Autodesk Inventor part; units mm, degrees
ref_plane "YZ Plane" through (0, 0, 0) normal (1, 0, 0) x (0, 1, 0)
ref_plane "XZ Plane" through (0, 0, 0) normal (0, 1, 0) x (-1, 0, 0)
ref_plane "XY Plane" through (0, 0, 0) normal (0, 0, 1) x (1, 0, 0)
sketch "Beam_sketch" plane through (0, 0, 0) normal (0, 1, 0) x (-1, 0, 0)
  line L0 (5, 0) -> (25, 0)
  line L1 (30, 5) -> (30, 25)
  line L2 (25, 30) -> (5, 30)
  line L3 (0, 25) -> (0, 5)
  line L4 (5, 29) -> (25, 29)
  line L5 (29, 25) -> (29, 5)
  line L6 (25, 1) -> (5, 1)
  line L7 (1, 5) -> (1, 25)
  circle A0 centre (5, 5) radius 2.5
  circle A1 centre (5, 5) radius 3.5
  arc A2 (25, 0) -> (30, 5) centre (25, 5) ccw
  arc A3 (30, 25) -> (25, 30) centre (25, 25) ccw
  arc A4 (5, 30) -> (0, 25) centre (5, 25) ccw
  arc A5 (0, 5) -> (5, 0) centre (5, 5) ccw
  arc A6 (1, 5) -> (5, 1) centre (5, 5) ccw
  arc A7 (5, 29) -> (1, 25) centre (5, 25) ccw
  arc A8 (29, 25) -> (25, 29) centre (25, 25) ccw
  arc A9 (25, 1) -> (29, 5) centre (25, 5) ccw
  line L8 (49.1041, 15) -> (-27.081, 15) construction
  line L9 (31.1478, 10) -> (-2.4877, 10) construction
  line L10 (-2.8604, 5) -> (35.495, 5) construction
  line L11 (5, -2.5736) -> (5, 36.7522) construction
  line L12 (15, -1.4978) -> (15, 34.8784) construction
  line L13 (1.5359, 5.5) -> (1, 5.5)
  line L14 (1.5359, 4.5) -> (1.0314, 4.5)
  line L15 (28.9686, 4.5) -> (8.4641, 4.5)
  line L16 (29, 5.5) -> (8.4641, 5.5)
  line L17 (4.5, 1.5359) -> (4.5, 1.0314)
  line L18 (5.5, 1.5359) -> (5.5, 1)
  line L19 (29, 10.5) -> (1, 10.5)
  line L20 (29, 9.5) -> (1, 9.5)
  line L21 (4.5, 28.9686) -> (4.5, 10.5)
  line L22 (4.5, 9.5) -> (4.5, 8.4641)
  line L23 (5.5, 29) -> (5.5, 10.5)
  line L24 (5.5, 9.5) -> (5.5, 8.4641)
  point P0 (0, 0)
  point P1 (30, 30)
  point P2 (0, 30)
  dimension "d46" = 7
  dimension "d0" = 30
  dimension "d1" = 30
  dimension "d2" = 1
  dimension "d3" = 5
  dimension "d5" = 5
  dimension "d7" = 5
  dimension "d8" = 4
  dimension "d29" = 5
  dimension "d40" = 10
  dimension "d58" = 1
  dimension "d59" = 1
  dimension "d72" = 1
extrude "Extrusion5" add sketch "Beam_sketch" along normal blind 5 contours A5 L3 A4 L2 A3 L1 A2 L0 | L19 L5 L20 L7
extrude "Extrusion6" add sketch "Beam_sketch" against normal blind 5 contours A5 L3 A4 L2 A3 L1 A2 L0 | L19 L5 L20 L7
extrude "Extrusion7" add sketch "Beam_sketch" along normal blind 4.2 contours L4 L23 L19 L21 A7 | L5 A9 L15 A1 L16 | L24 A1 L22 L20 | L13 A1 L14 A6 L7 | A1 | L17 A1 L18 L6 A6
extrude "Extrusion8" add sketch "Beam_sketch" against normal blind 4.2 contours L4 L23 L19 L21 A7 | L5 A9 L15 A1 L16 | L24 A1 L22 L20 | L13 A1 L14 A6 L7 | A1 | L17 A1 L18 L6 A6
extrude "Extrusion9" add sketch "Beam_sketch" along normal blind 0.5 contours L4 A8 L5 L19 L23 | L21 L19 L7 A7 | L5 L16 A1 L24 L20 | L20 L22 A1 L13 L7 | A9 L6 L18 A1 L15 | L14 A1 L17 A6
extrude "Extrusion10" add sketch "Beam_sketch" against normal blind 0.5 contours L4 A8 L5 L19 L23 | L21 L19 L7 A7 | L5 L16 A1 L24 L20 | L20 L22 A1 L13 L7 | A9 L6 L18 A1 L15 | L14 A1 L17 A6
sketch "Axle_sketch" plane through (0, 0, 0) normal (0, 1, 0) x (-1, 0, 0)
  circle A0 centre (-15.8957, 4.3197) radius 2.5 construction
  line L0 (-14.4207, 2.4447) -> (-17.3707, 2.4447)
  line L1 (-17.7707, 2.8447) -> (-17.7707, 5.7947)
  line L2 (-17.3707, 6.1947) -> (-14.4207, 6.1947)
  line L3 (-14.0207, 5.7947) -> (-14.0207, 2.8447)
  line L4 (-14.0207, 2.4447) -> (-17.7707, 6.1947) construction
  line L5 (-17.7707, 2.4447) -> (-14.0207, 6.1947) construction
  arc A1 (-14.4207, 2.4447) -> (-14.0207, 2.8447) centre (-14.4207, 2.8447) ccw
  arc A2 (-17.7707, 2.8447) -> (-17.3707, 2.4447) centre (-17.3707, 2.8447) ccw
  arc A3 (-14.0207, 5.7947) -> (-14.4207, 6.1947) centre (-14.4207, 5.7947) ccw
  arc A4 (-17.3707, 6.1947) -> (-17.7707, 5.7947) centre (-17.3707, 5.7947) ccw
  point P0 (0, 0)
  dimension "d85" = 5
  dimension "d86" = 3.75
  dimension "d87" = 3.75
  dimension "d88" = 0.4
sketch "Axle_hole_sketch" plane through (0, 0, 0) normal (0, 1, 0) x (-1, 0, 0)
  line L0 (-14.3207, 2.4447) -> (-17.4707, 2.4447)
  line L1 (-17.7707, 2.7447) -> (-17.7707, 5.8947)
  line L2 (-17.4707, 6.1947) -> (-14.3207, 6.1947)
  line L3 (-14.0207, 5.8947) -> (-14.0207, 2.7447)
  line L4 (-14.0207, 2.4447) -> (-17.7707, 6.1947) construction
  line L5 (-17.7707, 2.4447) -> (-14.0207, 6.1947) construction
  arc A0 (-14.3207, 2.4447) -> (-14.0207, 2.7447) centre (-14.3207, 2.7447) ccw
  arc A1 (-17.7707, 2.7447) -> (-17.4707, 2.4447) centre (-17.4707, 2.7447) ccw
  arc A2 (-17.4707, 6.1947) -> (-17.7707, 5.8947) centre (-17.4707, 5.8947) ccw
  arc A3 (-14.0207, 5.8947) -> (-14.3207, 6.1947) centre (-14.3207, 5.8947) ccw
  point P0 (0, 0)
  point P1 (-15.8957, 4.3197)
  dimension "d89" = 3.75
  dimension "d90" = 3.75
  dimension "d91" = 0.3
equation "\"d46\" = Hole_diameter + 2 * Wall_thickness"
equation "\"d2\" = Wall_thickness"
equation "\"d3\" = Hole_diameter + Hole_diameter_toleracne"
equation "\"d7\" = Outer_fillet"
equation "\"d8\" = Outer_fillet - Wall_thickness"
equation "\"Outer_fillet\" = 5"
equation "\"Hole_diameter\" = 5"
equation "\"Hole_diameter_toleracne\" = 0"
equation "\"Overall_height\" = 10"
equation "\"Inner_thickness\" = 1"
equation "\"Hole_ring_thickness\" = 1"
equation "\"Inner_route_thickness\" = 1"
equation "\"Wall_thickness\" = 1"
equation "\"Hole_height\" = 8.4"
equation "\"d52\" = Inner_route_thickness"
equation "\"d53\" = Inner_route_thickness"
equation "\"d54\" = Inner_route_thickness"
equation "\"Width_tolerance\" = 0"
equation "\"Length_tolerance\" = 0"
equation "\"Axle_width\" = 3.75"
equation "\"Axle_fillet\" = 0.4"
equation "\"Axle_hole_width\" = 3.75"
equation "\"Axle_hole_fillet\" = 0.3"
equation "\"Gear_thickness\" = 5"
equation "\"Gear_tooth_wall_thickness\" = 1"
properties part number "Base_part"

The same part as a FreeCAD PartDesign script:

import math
import FreeCAD as App
import Part
import Sketcher

V = App.Vector

doc = App.newDocument("Part")
params = doc.addObject("Spreadsheet::Sheet", "Params")
for row, (alias, value) in enumerate([
    ("sketch1_radius", "5 mm"),
    ("sketch1_radius2", "4 mm"),
    ("sketch1_height", "14.5 mm"),
    ("pad1_length", "5 mm"),
    ("sketch2_radius", "5 mm"),
    ("sketch2_radius2", "4 mm"),
    ("sketch2_height", "14.5 mm"),
    ("pad2_length", "5 mm"),
    ("sketch3_diameter", "5 mm"),
    ("sketch3_radius", "4 mm"),
    ("sketch3_radius2", "3.5 mm"),
    ("sketch3_width", "1 mm"),
    ("sketch3_height", "18.5 mm"),
    ("pad3_length", "4.2 mm"),
    ("sketch4_diameter", "5 mm"),
    ("sketch4_radius", "4 mm"),
    ("sketch4_radius2", "3.5 mm"),
    ("sketch4_width", "1 mm"),
    ("sketch4_height", "18.5 mm"),
    ("pad4_length", "4.2 mm"),
    ("sketch5_radius", "4 mm"),
    ("sketch5_radius2", "3.5 mm"),
    ("sketch5_height", "4 mm"),
    ("sketch5_width", "19.5 mm"),
    ("sketch5_height2", "18.5 mm"),
    ("pad5_length", "0.5 mm"),
    ("sketch6_radius", "4 mm"),
    ("sketch6_radius2", "3.5 mm"),
    ("sketch6_height", "4 mm"),
    ("sketch6_width", "19.5 mm"),
    ("sketch6_height2", "18.5 mm"),
    ("pad6_length", "0.5 mm"),
], start=1):
    params.set(f"A{row}", alias)
    params.set(f"B{row}", "=" + value)
    params.setAlias(f"B{row}", alias)

body = doc.addObject("PartDesign::Body", "Body")

sketch1 = body.newObject("Sketcher::SketchObject", "Sketch")
sketch1.AttachmentSupport = (doc.getObject("XZ_Plane"), [""])
sketch1.MapMode = "FlatFace"
sketch1.addGeometry(Part.ArcOfCircle(Part.Circle(V(-5, 5, 0), V(0, 0, 1), 5), math.radians(-90), math.radians(0)), False)
sketch1.addGeometry(Part.LineSegment(V(-5, 0, 0), V(-25, 0, 0)), False)
sketch1.addGeometry(Part.ArcOfCircle(Part.Circle(V(-25, 5, 0), V(0, 0, 1), 5), math.radians(180), math.radians(270)), False)
sketch1.addGeometry(Part.LineSegment(V(-30, 5, 0), V(-30, 25, 0)), False)
sketch1.addGeometry(Part.ArcOfCircle(Part.Circle(V(-25, 25, 0), V(0, 0, 1), 5), math.radians(90), math.radians(180)), False)
sketch1.addGeometry(Part.LineSegment(V(-25, 30, 0), V(-5, 30, 0)), False)
sketch1.addGeometry(Part.ArcOfCircle(Part.Circle(V(-5, 25, 0), V(0, 0, 1), 5), math.radians(0), math.radians(90)), False)
sketch1.addGeometry(Part.LineSegment(V(0, 25, 0), V(0, 5, 0)), False)
sketch1.addGeometry(Part.LineSegment(V(-5, 29, 0), V(-25, 29, 0)), False)
sketch1.addGeometry(Part.ArcOfCircle(Part.Circle(V(-25, 25, 0), V(0, 0, 1), 4), math.radians(90), math.radians(180)), False)
sketch1.addGeometry(Part.LineSegment(V(-29, 25, 0), V(-29, 10.5, 0)), False)
sketch1.addGeometry(Part.LineSegment(V(-29, 10.5, 0), V(-1, 10.5, 0)), False)
sketch1.addGeometry(Part.LineSegment(V(-1, 10.5, 0), V(-1, 25, 0)), False)
sketch1.addGeometry(Part.ArcOfCircle(Part.Circle(V(-5, 25, 0), V(0, 0, 1), 4), math.radians(0), math.radians(90)), False)
sketch1.addGeometry(Part.LineSegment(V(-1, 9.5, 0), V(-29, 9.5, 0)), False)
sketch1.addGeometry(Part.LineSegment(V(-29, 9.5, 0), V(-29, 5, 0)), False)
sketch1.addGeometry(Part.ArcOfCircle(Part.Circle(V(-25, 5, 0), V(0, 0, 1), 4), math.radians(180), math.radians(270)), False)
sketch1.addGeometry(Part.LineSegment(V(-25, 1, 0), V(-5, 1, 0)), False)
sketch1.addGeometry(Part.ArcOfCircle(Part.Circle(V(-5, 5, 0), V(0, 0, 1), 4), math.radians(-90), math.radians(0)), False)
sketch1.addGeometry(Part.LineSegment(V(-1, 5, 0), V(-1, 9.5, 0)), False)
sketch1.addConstraint(Sketcher.Constraint("Tangent", 0, 1, 1, 1))
sketch1.addConstraint(Sketcher.Constraint("Tangent", 1, 2, 2, 2))
sketch1.addConstraint(Sketcher.Constraint("Tangent", 2, 1, 3, 1))
sketch1.addConstraint(Sketcher.Constraint("Tangent", 3, 2, 4, 2))
sketch1.addConstraint(Sketcher.Constraint("Tangent", 4, 1, 5, 1))
sketch1.addConstraint(Sketcher.Constraint("Tangent", 5, 2, 6, 2))
sketch1.addConstraint(Sketcher.Constraint("Tangent", 6, 1, 7, 1))
sketch1.addConstraint(Sketcher.Constraint("Tangent", 7, 2, 0, 2))
sketch1.addConstraint(Sketcher.Constraint("Tangent", 8, 2, 9, 1))
sketch1.addConstraint(Sketcher.Constraint("Tangent", 9, 2, 10, 1))
sketch1.addConstraint(Sketcher.Constraint("Coincident", 10, 2, 11, 1))
sketch1.addConstraint(Sketcher.Constraint("Coincident", 11, 2, 12, 1))
sketch1.addConstraint(Sketcher.Constraint("Tangent", 12, 2, 13, 1))
sketch1.addConstraint(Sketcher.Constraint("Tangent", 13, 2, 8, 1))
sketch1.addConstraint(Sketcher.Constraint("Coincident", 14, 2, 15, 1))
sketch1.addConstraint(Sketcher.Constraint("Tangent", 15, 2, 16, 1))
sketch1.addConstraint(Sketcher.Constraint("Tangent", 16, 2, 17, 1))
sketch1.addConstraint(Sketcher.Constraint("Tangent", 17, 2, 18, 1))
sketch1.addConstraint(Sketcher.Constraint("Tangent", 18, 2, 19, 1))
sketch1.addConstraint(Sketcher.Constraint("Coincident", 19, 2, 14, 1))
sketch1.addConstraint(Sketcher.Constraint("Horizontal", 1))
sketch1.addConstraint(Sketcher.Constraint("Vertical", 3))
sketch1.addConstraint(Sketcher.Constraint("Horizontal", 5))
sketch1.addConstraint(Sketcher.Constraint("Vertical", 7))
sketch1.addConstraint(Sketcher.Constraint("Horizontal", 8))
sketch1.addConstraint(Sketcher.Constraint("Vertical", 10))
sketch1.addConstraint(Sketcher.Constraint("Horizontal", 11))
sketch1.addConstraint(Sketcher.Constraint("Vertical", 12))
sketch1.addConstraint(Sketcher.Constraint("Horizontal", 14))
sketch1.addConstraint(Sketcher.Constraint("Vertical", 15))
sketch1.addConstraint(Sketcher.Constraint("Horizontal", 17))
sketch1.addConstraint(Sketcher.Constraint("Vertical", 19))
sketch1.addConstraint(Sketcher.Constraint("Coincident", 9, 3, 4, 3))
sketch1.addConstraint(Sketcher.Constraint("Coincident", 13, 3, 6, 3))
sketch1.addConstraint(Sketcher.Constraint("Coincident", 16, 3, 2, 3))
sketch1.addConstraint(Sketcher.Constraint("Coincident", 18, 3, 0, 3))
sketch1.addConstraint(Sketcher.Constraint("Equal", 0, 2))
sketch1.addConstraint(Sketcher.Constraint("Equal", 2, 4))
sketch1.addConstraint(Sketcher.Constraint("Equal", 4, 6))
sketch1.addConstraint(Sketcher.Constraint("Equal", 13, 16))
sketch1.addConstraint(Sketcher.Constraint("PointOnObject", 0, 1, -1))
sketch1.addConstraint(Sketcher.Constraint("PointOnObject", 6, 1, -2))
sketch1.addConstraint(Sketcher.Constraint("Equal", 17, 3))
sketch1.addConstraint(Sketcher.Constraint("Radius", 0, 5.0))
sketch1.addConstraint(Sketcher.Constraint("Radius", 9, 4.0))
sketch1.addConstraint(Sketcher.Constraint("DistanceX", 2, 1, -1, 1, 30.0))
sketch1.addConstraint(Sketcher.Constraint("DistanceY", 14, 2, 10, 2, 1.0))
sketch1.addConstraint(Sketcher.Constraint("DistanceY", 10, 2, 10, 1, 14.5))
sketch1.setExpression("Constraints[43]", "Params.sketch1_radius")
sketch1.setExpression("Constraints[44]", "Params.sketch1_radius2")
sketch1.setExpression("Constraints[47]", "Params.sketch1_height")
pad1 = body.newObject("PartDesign::Pad", "Pad")
pad1.Profile = sketch1
pad1.setExpression("Length", "Params.pad1_length")
pad1.Reversed = True

sketch2 = body.newObject("Sketcher::SketchObject", "Sketch001")
sketch2.AttachmentSupport = (doc.getObject("XZ_Plane"), [""])
sketch2.MapMode = "FlatFace"
sketch2.addGeometry(Part.ArcOfCircle(Part.Circle(V(-5, 5, 0), V(0, 0, 1), 5), math.radians(-90), math.radians(0)), False)
sketch2.addGeometry(Part.LineSegment(V(-5, 0, 0), V(-25, 0, 0)), False)
sketch2.addGeometry(Part.ArcOfCircle(Part.Circle(V(-25, 5, 0), V(0, 0, 1), 5), math.radians(180), math.radians(270)), False)
sketch2.addGeometry(Part.LineSegment(V(-30, 5, 0), V(-30, 25, 0)), False)
sketch2.addGeometry(Part.ArcOfCircle(Part.Circle(V(-25, 25, 0), V(0, 0, 1), 5), math.radians(90), math.radians(180)), False)
sketch2.addGeometry(Part.LineSegment(V(-25, 30, 0), V(-5, 30, 0)), False)
sketch2.addGeometry(Part.ArcOfCircle(Part.Circle(V(-5, 25, 0), V(0, 0, 1), 5), math.radians(0), math.radians(90)), False)
sketch2.addGeometry(Part.LineSegment(V(0, 25, 0), V(0, 5, 0)), False)
sketch2.addGeometry(Part.LineSegment(V(-5, 29, 0), V(-25, 29, 0)), False)
sketch2.addGeometry(Part.ArcOfCircle(Part.Circle(V(-25, 25, 0), V(0, 0, 1), 4), math.radians(90), math.radians(180)), False)
sketch2.addGeometry(Part.LineSegment(V(-29, 25, 0), V(-29, 10.5, 0)), False)
sketch2.addGeometry(Part.LineSegment(V(-29, 10.5, 0), V(-1, 10.5, 0)), False)
sketch2.addGeometry(Part.LineSegment(V(-1, 10.5, 0), V(-1, 25, 0)), False)
sketch2.addGeometry(Part.ArcOfCircle(Part.Circle(V(-5, 25, 0), V(0, 0, 1), 4), math.radians(0), math.radians(90)), False)
sketch2.addGeometry(Part.LineSegment(V(-1, 9.5, 0), V(-29, 9.5, 0)), False)
sketch2.addGeometry(Part.LineSegment(V(-29, 9.5, 0), V(-29, 5, 0)), False)
sketch2.addGeometry(Part.ArcOfCircle(Part.Circle(V(-25, 5, 0), V(0, 0, 1), 4), math.radians(180), math.radians(270)), False)
sketch2.addGeometry(Part.LineSegment(V(-25, 1, 0), V(-5, 1, 0)), False)
sketch2.addGeometry(Part.ArcOfCircle(Part.Circle(V(-5, 5, 0), V(0, 0, 1), 4), math.radians(-90), math.radians(0)), False)
sketch2.addGeometry(Part.LineSegment(V(-1, 5, 0), V(-1, 9.5, 0)), False)
sketch2.addConstraint(Sketcher.Constraint("Tangent", 0, 1, 1, 1))
sketch2.addConstraint(Sketcher.Constraint("Tangent", 1, 2, 2, 2))
sketch2.addConstraint(Sketcher.Constraint("Tangent", 2, 1, 3, 1))
sketch2.addConstraint(Sketcher.Constraint("Tangent", 3, 2, 4, 2))
sketch2.addConstraint(Sketcher.Constraint("Tangent", 4, 1, 5, 1))
sketch2.addConstraint(Sketcher.Constraint("Tangent", 5, 2, 6, 2))
sketch2.addConstraint(Sketcher.Constraint("Tangent", 6, 1, 7, 1))
sketch2.addConstraint(Sketcher.Constraint("Tangent", 7, 2, 0, 2))
sketch2.addConstraint(Sketcher.Constraint("Tangent", 8, 2, 9, 1))
sketch2.addConstraint(Sketcher.Constraint("Tangent", 9, 2, 10, 1))
sketch2.addConstraint(Sketcher.Constraint("Coincident", 10, 2, 11, 1))
sketch2.addConstraint(Sketcher.Constraint("Coincident", 11, 2, 12, 1))
sketch2.addConstraint(Sketcher.Constraint("Tangent", 12, 2, 13, 1))
sketch2.addConstraint(Sketcher.Constraint("Tangent", 13, 2, 8, 1))
sketch2.addConstraint(Sketcher.Constraint("Coincident", 14, 2, 15, 1))
sketch2.addConstraint(Sketcher.Constraint("Tangent", 15, 2, 16, 1))
sketch2.addConstraint(Sketcher.Constraint("Tangent", 16, 2, 17, 1))
sketch2.addConstraint(Sketcher.Constraint("Tangent", 17, 2, 18, 1))
sketch2.addConstraint(Sketcher.Constraint("Tangent", 18, 2, 19, 1))
sketch2.addConstraint(Sketcher.Constraint("Coincident", 19, 2, 14, 1))
sketch2.addConstraint(Sketcher.Constraint("Horizontal", 1))
sketch2.addConstraint(Sketcher.Constraint("Vertical", 3))
sketch2.addConstraint(Sketcher.Constraint("Horizontal", 5))
sketch2.addConstraint(Sketcher.Constraint("Vertical", 7))
sketch2.addConstraint(Sketcher.Constraint("Horizontal", 8))
sketch2.addConstraint(Sketcher.Constraint("Vertical", 10))
sketch2.addConstraint(Sketcher.Constraint("Horizontal", 11))
sketch2.addConstraint(Sketcher.Constraint("Vertical", 12))
sketch2.addConstraint(Sketcher.Constraint("Horizontal", 14))
sketch2.addConstraint(Sketcher.Constraint("Vertical", 15))
sketch2.addConstraint(Sketcher.Constraint("Horizontal", 17))
sketch2.addConstraint(Sketcher.Constraint("Vertical", 19))
sketch2.addConstraint(Sketcher.Constraint("Coincident", 9, 3, 4, 3))
sketch2.addConstraint(Sketcher.Constraint("Coincident", 13, 3, 6, 3))
sketch2.addConstraint(Sketcher.Constraint("Coincident", 16, 3, 2, 3))
sketch2.addConstraint(Sketcher.Constraint("Coincident", 18, 3, 0, 3))
sketch2.addConstraint(Sketcher.Constraint("Equal", 0, 2))
sketch2.addConstraint(Sketcher.Constraint("Equal", 2, 4))
sketch2.addConstraint(Sketcher.Constraint("Equal", 4, 6))
sketch2.addConstraint(Sketcher.Constraint("Equal", 13, 16))
sketch2.addConstraint(Sketcher.Constraint("PointOnObject", 0, 1, -1))
sketch2.addConstraint(Sketcher.Constraint("PointOnObject", 6, 1, -2))
sketch2.addConstraint(Sketcher.Constraint("Equal", 17, 3))
sketch2.addConstraint(Sketcher.Constraint("Radius", 0, 5.0))
sketch2.addConstraint(Sketcher.Constraint("Radius", 9, 4.0))
sketch2.addConstraint(Sketcher.Constraint("DistanceX", 2, 1, -1, 1, 30.0))
sketch2.addConstraint(Sketcher.Constraint("DistanceY", 14, 2, 10, 2, 1.0))
sketch2.addConstraint(Sketcher.Constraint("DistanceY", 10, 2, 10, 1, 14.5))
sketch2.setExpression("Constraints[43]", "Params.sketch2_radius")
sketch2.setExpression("Constraints[44]", "Params.sketch2_radius2")
sketch2.setExpression("Constraints[47]", "Params.sketch2_height")
pad2 = body.newObject("PartDesign::Pad", "Pad001")
pad2.Profile = sketch2
pad2.setExpression("Length", "Params.pad2_length")

sketch3 = body.newObject("Sketcher::SketchObject", "Sketch002")
sketch3.AttachmentSupport = (doc.getObject("XZ_Plane"), [""])
sketch3.MapMode = "FlatFace"
sketch3.addGeometry(Part.LineSegment(V(-5.5, 29, 0), V(-5, 29, 0)), False)
sketch3.addGeometry(Part.ArcOfCircle(Part.Circle(V(-5, 25, 0), V(0, 0, 1), 4), math.radians(82.82), math.radians(90)), False)
sketch3.addGeometry(Part.LineSegment(V(-4.5, 29, 0), V(-4.5, 10.5, 0)), False)
sketch3.addGeometry(Part.LineSegment(V(-4.5, 10.5, 0), V(-5.5, 10.5, 0)), False)
sketch3.addGeometry(Part.LineSegment(V(-5.5, 10.5, 0), V(-5.5, 29, 0)), False)
sketch3.addGeometry(Part.LineSegment(V(-29, 5, 0), V(-29, 5.5, 0)), False)
sketch3.addGeometry(Part.LineSegment(V(-29, 5.5, 0), V(-8.5, 5.5, 0)), False)
sketch3.addGeometry(Part.ArcOfCircle(Part.Circle(V(-5, 5, 0), V(0, 0, 1), 3.5), math.radians(98), math.radians(172)), False)
sketch3.addGeometry(Part.LineSegment(V(-5.5, 8.5, 0), V(-5.5, 9.5, 0)), False)
sketch3.addGeometry(Part.LineSegment(V(-5.5, 9.5, 0), V(-4.5, 9.5, 0)), False)
sketch3.addGeometry(Part.LineSegment(V(-4.5, 9.5, 0), V(-4.5, 8.5, 0)), False)
sketch3.addGeometry(Part.ArcOfCircle(Part.Circle(V(-5, 5, 0), V(0, 0, 1), 3.5), math.radians(8), math.radians(82)), False)
sketch3.addGeometry(Part.LineSegment(V(-1.5, 5.5, 0), V(-1, 5.5, 0)), False)
sketch3.addGeometry(Part.LineSegment(V(-1, 5.5, 0), V(-1, 5, 0)), False)
sketch3.addGeometry(Part.ArcOfCircle(Part.Circle(V(-5, 5, 0), V(0, 0, 1), 4), math.radians(-7.18), math.radians(0)), False)
sketch3.addGeometry(Part.LineSegment(V(-1, 4.5, 0), V(-1.5, 4.5, 0)), False)
sketch3.addGeometry(Part.ArcOfCircle(Part.Circle(V(-5, 5, 0), V(0, 0, 1), 3.5), math.radians(-82), math.radians(-8)), False)
sketch3.addGeometry(Part.LineSegment(V(-4.5, 1.5, 0), V(-4.5, 1, 0)), False)
sketch3.addGeometry(Part.ArcOfCircle(Part.Circle(V(-5, 5, 0), V(0, 0, 1), 4), math.radians(-90), math.radians(-82.82)), False)
sketch3.addGeometry(Part.LineSegment(V(-5, 1, 0), V(-5.5, 1, 0)), False)
sketch3.addGeometry(Part.LineSegment(V(-5.5, 1, 0), V(-5.5, 1.5, 0)), False)
sketch3.addGeometry(Part.ArcOfCircle(Part.Circle(V(-5, 5, 0), V(0, 0, 1), 3.5), math.radians(-172), math.radians(-98)), False)
sketch3.addGeometry(Part.LineSegment(V(-8.5, 4.5, 0), V(-29, 4.5, 0)), False)
sketch3.addGeometry(Part.ArcOfCircle(Part.Circle(V(-25, 5, 0), V(0, 0, 1), 4), math.radians(180), math.radians(187.18)), False)
sketch3.addGeometry(Part.Circle(V(-5, 5, 0), V(0, 0, 1), 2.5), False)
sketch3.addConstraint(Sketcher.Constraint("Tangent", 0, 2, 1, 2))
sketch3.addConstraint(Sketcher.Constraint("Coincident", 1, 1, 2, 1))
sketch3.addConstraint(Sketcher.Constraint("Coincident", 2, 2, 3, 1))
sketch3.addConstraint(Sketcher.Constraint("Coincident", 3, 2, 4, 1))
sketch3.addConstraint(Sketcher.Constraint("Coincident", 4, 2, 0, 1))
sketch3.addConstraint(Sketcher.Constraint("Coincident", 5, 2, 6, 1))
sketch3.addConstraint(Sketcher.Constraint("Coincident", 6, 2, 7, 2))
sketch3.addConstraint(Sketcher.Constraint("Coincident", 7, 1, 8, 1))
sketch3.addConstraint(Sketcher.Constraint("Coincident", 8, 2, 9, 1))
sketch3.addConstraint(Sketcher.Constraint("Coincident", 9, 2, 10, 1))
sketch3.addConstraint(Sketcher.Constraint("Coincident", 10, 2, 11, 2))
sketch3.addConstraint(Sketcher.Constraint("Coincident", 11, 1, 12, 1))
sketch3.addConstraint(Sketcher.Constraint("Coincident", 12, 2, 13, 1))
sketch3.addConstraint(Sketcher.Constraint("Tangent", 13, 2, 14, 2))
sketch3.addConstraint(Sketcher.Constraint("Coincident", 14, 1, 15, 1))
sketch3.addConstraint(Sketcher.Constraint("Coincident", 15, 2, 16, 2))
sketch3.addConstraint(Sketcher.Constraint("Coincident", 16, 1, 17, 1))
sketch3.addConstraint(Sketcher.Constraint("Coincident", 17, 2, 18, 2))
sketch3.addConstraint(Sketcher.Constraint("Tangent", 18, 1, 19, 1))
sketch3.addConstraint(Sketcher.Constraint("Coincident", 19, 2, 20, 1))
sketch3.addConstraint(Sketcher.Constraint("Coincident", 20, 2, 21, 2))
sketch3.addConstraint(Sketcher.Constraint("Coincident", 21, 1, 22, 1))
sketch3.addConstraint(Sketcher.Constraint("Coincident", 22, 2, 23, 2))
sketch3.addConstraint(Sketcher.Constraint("Tangent", 23, 1, 5, 1))
sketch3.addConstraint(Sketcher.Constraint("Horizontal", 0))
sketch3.addConstraint(Sketcher.Constraint("Vertical", 2))
sketch3.addConstraint(Sketcher.Constraint("Horizontal", 3))
sketch3.addConstraint(Sketcher.Constraint("Vertical", 4))
sketch3.addConstraint(Sketcher.Constraint("Vertical", 5))
sketch3.addConstraint(Sketcher.Constraint("Horizontal", 6))
sketch3.addConstraint(Sketcher.Constraint("Vertical", 8))
sketch3.addConstraint(Sketcher.Constraint("Horizontal", 9))
sketch3.addConstraint(Sketcher.Constraint("Vertical", 10))
sketch3.addConstraint(Sketcher.Constraint("Horizontal", 12))
sketch3.addConstraint(Sketcher.Constraint("Vertical", 13))
sketch3.addConstraint(Sketcher.Constraint("Horizontal", 15))
sketch3.addConstraint(Sketcher.Constraint("Vertical", 17))
sketch3.addConstraint(Sketcher.Constraint("Horizontal", 19))
sketch3.addConstraint(Sketcher.Constraint("Vertical", 20))
sketch3.addConstraint(Sketcher.Constraint("Horizontal", 22))
sketch3.addConstraint(Sketcher.Constraint("Coincident", 11, 3, 7, 3))
sketch3.addConstraint(Sketcher.Constraint("Coincident", 14, 3, 7, 3))
sketch3.addConstraint(Sketcher.Constraint("Coincident", 16, 3, 7, 3))
sketch3.addConstraint(Sketcher.Constraint("Coincident", 18, 3, 7, 3))
sketch3.addConstraint(Sketcher.Constraint("Coincident", 21, 3, 7, 3))
sketch3.addConstraint(Sketcher.Constraint("Coincident", 24, 3, 7, 3))
sketch3.addConstraint(Sketcher.Constraint("Equal", 7, 11))
sketch3.addConstraint(Sketcher.Constraint("Equal", 1, 14))
sketch3.addConstraint(Sketcher.Constraint("Equal", 11, 16))
sketch3.addConstraint(Sketcher.Constraint("Equal", 14, 18))
sketch3.addConstraint(Sketcher.Constraint("Equal", 16, 21))
sketch3.addConstraint(Sketcher.Constraint("Equal", 18, 23))
sketch3.addConstraint(Sketcher.Constraint("Horizontal", 21, 3, 23, 3))
sketch3.addConstraint(Sketcher.Constraint("Horizontal", 7, 1, 10, 2))
sketch3.addConstraint(Sketcher.Constraint("Horizontal", 6, 2, 11, 1))
sketch3.addConstraint(Sketcher.Constraint("Horizontal", 16, 1, 20, 2))
sketch3.addConstraint(Sketcher.Constraint("Horizontal", 15, 2, 21, 1))
sketch3.addConstraint(Sketcher.Constraint("Vertical", 1, 3, 7, 3))
sketch3.addConstraint(Sketcher.Constraint("Vertical", 4, 2, 7, 1))
sketch3.addConstraint(Sketcher.Constraint("Vertical", 2, 2, 9, 2))
sketch3.addConstraint(Sketcher.Constraint("Vertical", 11, 1, 15, 2))
sketch3.addConstraint(Sketcher.Constraint("Vertical", 10, 2, 16, 1))
sketch3.addConstraint(Sketcher.Constraint("Equal", 19, 5))
sketch3.addConstraint(Sketcher.Constraint("Diameter", 24, 5.0))
sketch3.addConstraint(Sketcher.Constraint("Radius", 1, 4.0))
sketch3.addConstraint(Sketcher.Constraint("Radius", 7, 3.5))
sketch3.addConstraint(Sketcher.Constraint("DistanceX", 3, 2, 3, 1, 1.0))
sketch3.addConstraint(Sketcher.Constraint("DistanceX", 1, 3, -1, 1, 5.0))
sketch3.addConstraint(Sketcher.Constraint("DistanceY", -1, 1, 7, 3, 5.0))
sketch3.addConstraint(Sketcher.Constraint("DistanceY", 8, 2, 3, 2, 1.0))
sketch3.addConstraint(Sketcher.Constraint("DistanceY", 4, 1, 4, 2, 18.5))
sketch3.addConstraint(Sketcher.Constraint("DistanceY", -1, 1, 1, 3, 25.0))
sketch3.addConstraint(Sketcher.Constraint("DistanceX", 23, 3, -1, 1, 25.0))
sketch3.setExpression("Constraints[63]", "Params.sketch3_diameter")
sketch3.setExpression("Constraints[64]", "Params.sketch3_radius")
sketch3.setExpression("Constraints[65]", "Params.sketch3_radius2")
sketch3.setExpression("Constraints[66]", "Params.sketch3_width")
sketch3.setExpression("Constraints[70]", "Params.sketch3_height")
pad3 = body.newObject("PartDesign::Pad", "Pad002")
pad3.Profile = sketch3
pad3.setExpression("Length", "Params.pad3_length")
pad3.Reversed = True

sketch4 = body.newObject("Sketcher::SketchObject", "Sketch003")
sketch4.AttachmentSupport = (doc.getObject("XZ_Plane"), [""])
sketch4.MapMode = "FlatFace"
sketch4.addGeometry(Part.LineSegment(V(-5.5, 29, 0), V(-5, 29, 0)), False)
sketch4.addGeometry(Part.ArcOfCircle(Part.Circle(V(-5, 25, 0), V(0, 0, 1), 4), math.radians(82.82), math.radians(90)), False)
sketch4.addGeometry(Part.LineSegment(V(-4.5, 29, 0), V(-4.5, 10.5, 0)), False)
sketch4.addGeometry(Part.LineSegment(V(-4.5, 10.5, 0), V(-5.5, 10.5, 0)), False)
sketch4.addGeometry(Part.LineSegment(V(-5.5, 10.5, 0), V(-5.5, 29, 0)), False)
sketch4.addGeometry(Part.LineSegment(V(-29, 5, 0), V(-29, 5.5, 0)), False)
sketch4.addGeometry(Part.LineSegment(V(-29, 5.5, 0), V(-8.5, 5.5, 0)), False)
sketch4.addGeometry(Part.ArcOfCircle(Part.Circle(V(-5, 5, 0), V(0, 0, 1), 3.5), math.radians(98), math.radians(172)), False)
sketch4.addGeometry(Part.LineSegment(V(-5.5, 8.5, 0), V(-5.5, 9.5, 0)), False)
sketch4.addGeometry(Part.LineSegment(V(-5.5, 9.5, 0), V(-4.5, 9.5, 0)), False)
sketch4.addGeometry(Part.LineSegment(V(-4.5, 9.5, 0), V(-4.5, 8.5, 0)), False)
sketch4.addGeometry(Part.ArcOfCircle(Part.Circle(V(-5, 5, 0), V(0, 0, 1), 3.5), math.radians(8), math.radians(82)), False)
sketch4.addGeometry(Part.LineSegment(V(-1.5, 5.5, 0), V(-1, 5.5, 0)), False)
sketch4.addGeometry(Part.LineSegment(V(-1, 5.5, 0), V(-1, 5, 0)), False)
sketch4.addGeometry(Part.ArcOfCircle(Part.Circle(V(-5, 5, 0), V(0, 0, 1), 4), math.radians(-7.18), math.radians(0)), False)
sketch4.addGeometry(Part.LineSegment(V(-1, 4.5, 0), V(-1.5, 4.5, 0)), False)
sketch4.addGeometry(Part.ArcOfCircle(Part.Circle(V(-5, 5, 0), V(0, 0, 1), 3.5), math.radians(-82), math.radians(-8)), False)
sketch4.addGeometry(Part.LineSegment(V(-4.5, 1.5, 0), V(-4.5, 1, 0)), False)
sketch4.addGeometry(Part.ArcOfCircle(Part.Circle(V(-5, 5, 0), V(0, 0, 1), 4), math.radians(-90), math.radians(-82.82)), False)
sketch4.addGeometry(Part.LineSegment(V(-5, 1, 0), V(-5.5, 1, 0)), False)
sketch4.addGeometry(Part.LineSegment(V(-5.5, 1, 0), V(-5.5, 1.5, 0)), False)
sketch4.addGeometry(Part.ArcOfCircle(Part.Circle(V(-5, 5, 0), V(0, 0, 1), 3.5), math.radians(-172), math.radians(-98)), False)
sketch4.addGeometry(Part.LineSegment(V(-8.5, 4.5, 0), V(-29, 4.5, 0)), False)
sketch4.addGeometry(Part.ArcOfCircle(Part.Circle(V(-25, 5, 0), V(0, 0, 1), 4), math.radians(180), math.radians(187.18)), False)
sketch4.addGeometry(Part.Circle(V(-5, 5, 0), V(0, 0, 1), 2.5), False)
sketch4.addConstraint(Sketcher.Constraint("Tangent", 0, 2, 1, 2))
sketch4.addConstraint(Sketcher.Constraint("Coincident", 1, 1, 2, 1))
sketch4.addConstraint(Sketcher.Constraint("Coincident", 2, 2, 3, 1))
sketch4.addConstraint(Sketcher.Constraint("Coincident", 3, 2, 4, 1))
sketch4.addConstraint(Sketcher.Constraint("Coincident", 4, 2, 0, 1))
sketch4.addConstraint(Sketcher.Constraint("Coincident", 5, 2, 6, 1))
sketch4.addConstraint(Sketcher.Constraint("Coincident", 6, 2, 7, 2))
sketch4.addConstraint(Sketcher.Constraint("Coincident", 7, 1, 8, 1))
sketch4.addConstraint(Sketcher.Constraint("Coincident", 8, 2, 9, 1))
sketch4.addConstraint(Sketcher.Constraint("Coincident", 9, 2, 10, 1))
sketch4.addConstraint(Sketcher.Constraint("Coincident", 10, 2, 11, 2))
sketch4.addConstraint(Sketcher.Constraint("Coincident", 11, 1, 12, 1))
sketch4.addConstraint(Sketcher.Constraint("Coincident", 12, 2, 13, 1))
sketch4.addConstraint(Sketcher.Constraint("Tangent", 13, 2, 14, 2))
sketch4.addConstraint(Sketcher.Constraint("Coincident", 14, 1, 15, 1))
sketch4.addConstraint(Sketcher.Constraint("Coincident", 15, 2, 16, 2))
sketch4.addConstraint(Sketcher.Constraint("Coincident", 16, 1, 17, 1))
sketch4.addConstraint(Sketcher.Constraint("Coincident", 17, 2, 18, 2))
sketch4.addConstraint(Sketcher.Constraint("Tangent", 18, 1, 19, 1))
sketch4.addConstraint(Sketcher.Constraint("Coincident", 19, 2, 20, 1))
sketch4.addConstraint(Sketcher.Constraint("Coincident", 20, 2, 21, 2))
sketch4.addConstraint(Sketcher.Constraint("Coincident", 21, 1, 22, 1))
sketch4.addConstraint(Sketcher.Constraint("Coincident", 22, 2, 23, 2))
sketch4.addConstraint(Sketcher.Constraint("Tangent", 23, 1, 5, 1))
sketch4.addConstraint(Sketcher.Constraint("Horizontal", 0))
sketch4.addConstraint(Sketcher.Constraint("Vertical", 2))
sketch4.addConstraint(Sketcher.Constraint("Horizontal", 3))
sketch4.addConstraint(Sketcher.Constraint("Vertical", 4))
sketch4.addConstraint(Sketcher.Constraint("Vertical", 5))
sketch4.addConstraint(Sketcher.Constraint("Horizontal", 6))
sketch4.addConstraint(Sketcher.Constraint("Vertical", 8))
sketch4.addConstraint(Sketcher.Constraint("Horizontal", 9))
sketch4.addConstraint(Sketcher.Constraint("Vertical", 10))
sketch4.addConstraint(Sketcher.Constraint("Horizontal", 12))
sketch4.addConstraint(Sketcher.Constraint("Vertical", 13))
sketch4.addConstraint(Sketcher.Constraint("Horizontal", 15))
sketch4.addConstraint(Sketcher.Constraint("Vertical", 17))
sketch4.addConstraint(Sketcher.Constraint("Horizontal", 19))
sketch4.addConstraint(Sketcher.Constraint("Vertical", 20))
sketch4.addConstraint(Sketcher.Constraint("Horizontal", 22))
sketch4.addConstraint(Sketcher.Constraint("Coincident", 11, 3, 7, 3))
sketch4.addConstraint(Sketcher.Constraint("Coincident", 14, 3, 7, 3))
sketch4.addConstraint(Sketcher.Constraint("Coincident", 16, 3, 7, 3))
sketch4.addConstraint(Sketcher.Constraint("Coincident", 18, 3, 7, 3))
sketch4.addConstraint(Sketcher.Constraint("Coincident", 21, 3, 7, 3))
sketch4.addConstraint(Sketcher.Constraint("Coincident", 24, 3, 7, 3))
sketch4.addConstraint(Sketcher.Constraint("Equal", 7, 11))
sketch4.addConstraint(Sketcher.Constraint("Equal", 1, 14))
sketch4.addConstraint(Sketcher.Constraint("Equal", 11, 16))
sketch4.addConstraint(Sketcher.Constraint("Equal", 14, 18))
sketch4.addConstraint(Sketcher.Constraint("Equal", 16, 21))
sketch4.addConstraint(Sketcher.Constraint("Equal", 18, 23))
sketch4.addConstraint(Sketcher.Constraint("Horizontal", 21, 3, 23, 3))
sketch4.addConstraint(Sketcher.Constraint("Horizontal", 7, 1, 10, 2))
sketch4.addConstraint(Sketcher.Constraint("Horizontal", 6, 2, 11, 1))
sketch4.addConstraint(Sketcher.Constraint("Horizontal", 16, 1, 20, 2))
sketch4.addConstraint(Sketcher.Constraint("Horizontal", 15, 2, 21, 1))
sketch4.addConstraint(Sketcher.Constraint("Vertical", 1, 3, 7, 3))
sketch4.addConstraint(Sketcher.Constraint("Vertical", 4, 2, 7, 1))
sketch4.addConstraint(Sketcher.Constraint("Vertical", 2, 2, 9, 2))
sketch4.addConstraint(Sketcher.Constraint("Vertical", 11, 1, 15, 2))
sketch4.addConstraint(Sketcher.Constraint("Vertical", 10, 2, 16, 1))
sketch4.addConstraint(Sketcher.Constraint("Equal", 19, 5))
sketch4.addConstraint(Sketcher.Constraint("Diameter", 24, 5.0))
sketch4.addConstraint(Sketcher.Constraint("Radius", 1, 4.0))
sketch4.addConstraint(Sketcher.Constraint("Radius", 7, 3.5))
sketch4.addConstraint(Sketcher.Constraint("DistanceX", 3, 2, 3, 1, 1.0))
sketch4.addConstraint(Sketcher.Constraint("DistanceX", 1, 3, -1, 1, 5.0))
sketch4.addConstraint(Sketcher.Constraint("DistanceY", -1, 1, 7, 3, 5.0))
sketch4.addConstraint(Sketcher.Constraint("DistanceY", 8, 2, 3, 2, 1.0))
sketch4.addConstraint(Sketcher.Constraint("DistanceY", 4, 1, 4, 2, 18.5))
sketch4.addConstraint(Sketcher.Constraint("DistanceY", -1, 1, 1, 3, 25.0))
sketch4.addConstraint(Sketcher.Constraint("DistanceX", 23, 3, -1, 1, 25.0))
sketch4.setExpression("Constraints[63]", "Params.sketch4_diameter")
sketch4.setExpression("Constraints[64]", "Params.sketch4_radius")
sketch4.setExpression("Constraints[65]", "Params.sketch4_radius2")
sketch4.setExpression("Constraints[66]", "Params.sketch4_width")
sketch4.setExpression("Constraints[70]", "Params.sketch4_height")
pad4 = body.newObject("PartDesign::Pad", "Pad003")
pad4.Profile = sketch4
pad4.setExpression("Length", "Params.pad4_length")

sketch5 = body.newObject("Sketcher::SketchObject", "Sketch004")
sketch5.AttachmentSupport = (doc.getObject("XZ_Plane"), [""])
sketch5.MapMode = "FlatFace"
sketch5.addGeometry(Part.LineSegment(V(-25, 29, 0), V(-5.5, 29, 0)), False)
sketch5.addGeometry(Part.LineSegment(V(-5.5, 29, 0), V(-5.5, 10.5, 0)), False)
sketch5.addGeometry(Part.LineSegment(V(-5.5, 10.5, 0), V(-29, 10.5, 0)), False)
sketch5.addGeometry(Part.LineSegment(V(-29, 10.5, 0), V(-29, 25, 0)), False)
sketch5.addGeometry(Part.ArcOfCircle(Part.Circle(V(-25, 25, 0), V(0, 0, 1), 4), math.radians(90), math.radians(180)), False)
sketch5.addGeometry(Part.LineSegment(V(-4.5, 10.5, 0), V(-4.5, 29, 0)), False)
sketch5.addGeometry(Part.ArcOfCircle(Part.Circle(V(-5, 25, 0), V(0, 0, 1), 4), math.radians(0), math.radians(83)), False)
sketch5.addGeometry(Part.LineSegment(V(-1, 25, 0), V(-1, 10.5, 0)), False)
sketch5.addGeometry(Part.LineSegment(V(-1, 10.5, 0), V(-4.5, 10.5, 0)), False)
sketch5.addGeometry(Part.LineSegment(V(-29, 5.5, 0), V(-29, 9.5, 0)), False)
sketch5.addGeometry(Part.LineSegment(V(-29, 9.5, 0), V(-5.5, 9.5, 0)), False)
sketch5.addGeometry(Part.LineSegment(V(-5.5, 9.5, 0), V(-5.5, 8.5, 0)), False)
sketch5.addGeometry(Part.ArcOfCircle(Part.Circle(V(-5, 5, 0), V(0, 0, 1), 3.5), math.radians(98), math.radians(172)), False)
sketch5.addGeometry(Part.LineSegment(V(-8.5, 5.5, 0), V(-29, 5.5, 0)), False)
sketch5.addGeometry(Part.LineSegment(V(-4.5, 9.5, 0), V(-1, 9.5, 0)), False)
sketch5.addGeometry(Part.LineSegment(V(-1, 9.5, 0), V(-1, 5.5, 0)), False)
sketch5.addGeometry(Part.LineSegment(V(-1, 5.5, 0), V(-1.5, 5.5, 0)), False)
sketch5.addGeometry(Part.ArcOfCircle(Part.Circle(V(-5, 5, 0), V(0, 0, 1), 3.5), math.radians(8), math.radians(82)), False)
sketch5.addGeometry(Part.LineSegment(V(-4.5, 8.5, 0), V(-4.5, 9.5, 0)), False)
sketch5.addGeometry(Part.ArcOfCircle(Part.Circle(V(-25, 5, 0), V(0, 0, 1), 4), math.radians(-173), math.radians(-90)), False)
sketch5.addGeometry(Part.LineSegment(V(-29, 4.5, 0), V(-8.5, 4.5, 0)), False)
sketch5.addGeometry(Part.ArcOfCircle(Part.Circle(V(-5, 5, 0), V(0, 0, 1), 3.5), math.radians(-172), math.radians(-98)), False)
sketch5.addGeometry(Part.LineSegment(V(-5.5, 1.5, 0), V(-5.5, 1, 0)), False)
sketch5.addGeometry(Part.LineSegment(V(-5.5, 1, 0), V(-25, 1, 0)), False)
sketch5.addGeometry(Part.LineSegment(V(-1.5, 4.5, 0), V(-1, 4.5, 0)), False)
sketch5.addGeometry(Part.ArcOfCircle(Part.Circle(V(-5, 5, 0), V(0, 0, 1), 4), math.radians(-83), math.radians(-7)), False)
sketch5.addGeometry(Part.LineSegment(V(-4.5, 1, 0), V(-4.5, 1.5, 0)), False)
sketch5.addGeometry(Part.ArcOfCircle(Part.Circle(V(-5, 5, 0), V(0, 0, 1), 3.5), math.radians(-82), math.radians(-8)), False)
sketch5.addConstraint(Sketcher.Constraint("Coincident", 0, 2, 1, 1))
sketch5.addConstraint(Sketcher.Constraint("Coincident", 1, 2, 2, 1))
sketch5.addConstraint(Sketcher.Constraint("Coincident", 2, 2, 3, 1))
sketch5.addConstraint(Sketcher.Constraint("Tangent", 3, 2, 4, 2))
sketch5.addConstraint(Sketcher.Constraint("Tangent", 4, 1, 0, 1))
sketch5.addConstraint(Sketcher.Constraint("Coincident", 5, 2, 6, 2))
sketch5.addConstraint(Sketcher.Constraint("Tangent", 6, 1, 7, 1))
sketch5.addConstraint(Sketcher.Constraint("Coincident", 7, 2, 8, 1))
sketch5.addConstraint(Sketcher.Constraint("Coincident", 8, 2, 5, 1))
sketch5.addConstraint(Sketcher.Constraint("Coincident", 9, 2, 10, 1))
sketch5.addConstraint(Sketcher.Constraint("Coincident", 10, 2, 11, 1))
sketch5.addConstraint(Sketcher.Constraint("Coincident", 11, 2, 12, 1))
sketch5.addConstraint(Sketcher.Constraint("Coincident", 12, 2, 13, 1))
sketch5.addConstraint(Sketcher.Constraint("Coincident", 13, 2, 9, 1))
sketch5.addConstraint(Sketcher.Constraint("Coincident", 14, 2, 15, 1))
sketch5.addConstraint(Sketcher.Constraint("Coincident", 15, 2, 16, 1))
sketch5.addConstraint(Sketcher.Constraint("Coincident", 16, 2, 17, 1))
sketch5.addConstraint(Sketcher.Constraint("Coincident", 17, 2, 18, 1))
sketch5.addConstraint(Sketcher.Constraint("Coincident", 18, 2, 14, 1))
sketch5.addConstraint(Sketcher.Constraint("Coincident", 19, 1, 20, 1))
sketch5.addConstraint(Sketcher.Constraint("Coincident", 20, 2, 21, 1))
sketch5.addConstraint(Sketcher.Constraint("Coincident", 21, 2, 22, 1))
sketch5.addConstraint(Sketcher.Constraint("Coincident", 22, 2, 23, 1))
sketch5.addConstraint(Sketcher.Constraint("Tangent", 23, 2, 19, 2))
sketch5.addConstraint(Sketcher.Constraint("Coincident", 24, 2, 25, 2))
sketch5.addConstraint(Sketcher.Constraint("Coincident", 25, 1, 26, 1))
sketch5.addConstraint(Sketcher.Constraint("Coincident", 26, 2, 27, 1))
sketch5.addConstraint(Sketcher.Constraint("Coincident", 27, 2, 24, 1))
sketch5.addConstraint(Sketcher.Constraint("Horizontal", 0))
sketch5.addConstraint(Sketcher.Constraint("Vertical", 1))
sketch5.addConstraint(Sketcher.Constraint("Horizontal", 2))
sketch5.addConstraint(Sketcher.Constraint("Vertical", 3))
sketch5.addConstraint(Sketcher.Constraint("Vertical", 5))
sketch5.addConstraint(Sketcher.Constraint("Vertical", 7))
sketch5.addConstraint(Sketcher.Constraint("Horizontal", 8))
sketch5.addConstraint(Sketcher.Constraint("Vertical", 9))
sketch5.addConstraint(Sketcher.Constraint("Horizontal", 10))
sketch5.addConstraint(Sketcher.Constraint("Vertical", 11))
sketch5.addConstraint(Sketcher.Constraint("Horizontal", 13))
sketch5.addConstraint(Sketcher.Constraint("Horizontal", 14))
sketch5.addConstraint(Sketcher.Constraint("Vertical", 15))
sketch5.addConstraint(Sketcher.Constraint("Horizontal", 16))
sketch5.addConstraint(Sketcher.Constraint("Vertical", 18))
sketch5.addConstraint(Sketcher.Constraint("Horizontal", 20))
sketch5.addConstraint(Sketcher.Constraint("Vertical", 22))
sketch5.addConstraint(Sketcher.Constraint("Horizontal", 23))
sketch5.addConstraint(Sketcher.Constraint("Horizontal", 24))
sketch5.addConstraint(Sketcher.Constraint("Vertical", 26))
sketch5.addConstraint(Sketcher.Constraint("Coincident", 17, 3, 12, 3))
sketch5.addConstraint(Sketcher.Constraint("Coincident", 21, 3, 12, 3))
sketch5.addConstraint(Sketcher.Constraint("Coincident", 25, 3, 12, 3))
sketch5.addConstraint(Sketcher.Constraint("Coincident", 27, 3, 12, 3))
sketch5.addConstraint(Sketcher.Constraint("Equal", 4, 6))
sketch5.addConstraint(Sketcher.Constraint("Equal", 12, 17))
sketch5.addConstraint(Sketcher.Constraint("Equal", 6, 19))
sketch5.addConstraint(Sketcher.Constraint("Equal", 17, 21))
sketch5.addConstraint(Sketcher.Constraint("Equal", 19, 25))
sketch5.addConstraint(Sketcher.Constraint("Equal", 21, 27))
sketch5.addConstraint(Sketcher.Constraint("Horizontal", 4, 3, 6, 3))
sketch5.addConstraint(Sketcher.Constraint("Horizontal", 17, 3, 19, 3))
sketch5.addConstraint(Sketcher.Constraint("Horizontal", 2, 2, 7, 2))
sketch5.addConstraint(Sketcher.Constraint("Horizontal", 10, 2, 14, 2))
sketch5.addConstraint(Sketcher.Constraint("Horizontal", 13, 2, 15, 2))
sketch5.addConstraint(Sketcher.Constraint("Horizontal", 11, 2, 17, 2))
sketch5.addConstraint(Sketcher.Constraint("Horizontal", 20, 2, 24, 2))
sketch5.addConstraint(Sketcher.Constraint("Horizontal", 21, 2, 26, 2))
sketch5.addConstraint(Sketcher.Constraint("Vertical", 6, 3, 12, 3))
sketch5.addConstraint(Sketcher.Constraint("Vertical", 4, 3, 19, 3))
sketch5.addConstraint(Sketcher.Constraint("Vertical", 3, 2, 9, 2))
sketch5.addConstraint(Sketcher.Constraint("Vertical", 1, 2, 10, 2))
sketch5.addConstraint(Sketcher.Constraint("Vertical", 7, 2, 14, 2))
sketch5.addConstraint(Sketcher.Constraint("Vertical", 8, 2, 17, 2))
sketch5.addConstraint(Sketcher.Constraint("Vertical", 12, 2, 20, 2))
sketch5.addConstraint(Sketcher.Constraint("Vertical", 11, 2, 21, 2))
sketch5.addConstraint(Sketcher.Constraint("Equal", 16, 22))
sketch5.addConstraint(Sketcher.Constraint("Radius", 4, 4.0))
sketch5.addConstraint(Sketcher.Constraint("Radius", 12, 3.5))
sketch5.addConstraint(Sketcher.Constraint("DistanceY", 9, 1, 9, 2, 4.0))
sketch5.addConstraint(Sketcher.Constraint("DistanceX", 6, 3, -1, 1, 5.0))
sketch5.addConstraint(Sketcher.Constraint("DistanceY", -1, 1, 12, 3, 5.0))
sketch5.addConstraint(Sketcher.Constraint("DistanceX", 0, 2, 5, 2, 1.0))
sketch5.addConstraint(Sketcher.Constraint("DistanceY", 9, 2, 2, 2, 1.0))
sketch5.addConstraint(Sketcher.Constraint("DistanceX", 0, 1, 0, 2, 19.5))
sketch5.addConstraint(Sketcher.Constraint("DistanceY", 1, 2, 1, 1, 18.5))
sketch5.setExpression("Constraints[75]", "Params.sketch5_radius")
sketch5.setExpression("Constraints[76]", "Params.sketch5_radius2")
sketch5.setExpression("Constraints[77]", "Params.sketch5_height")
sketch5.setExpression("Constraints[82]", "Params.sketch5_width")
sketch5.setExpression("Constraints[83]", "Params.sketch5_height2")
pad5 = body.newObject("PartDesign::Pad", "Pad004")
pad5.Profile = sketch5
pad5.setExpression("Length", "Params.pad5_length")
pad5.Reversed = True

sketch6 = body.newObject("Sketcher::SketchObject", "Sketch005")
sketch6.AttachmentSupport = (doc.getObject("XZ_Plane"), [""])
sketch6.MapMode = "FlatFace"
sketch6.addGeometry(Part.LineSegment(V(-25, 29, 0), V(-5.5, 29, 0)), False)
sketch6.addGeometry(Part.LineSegment(V(-5.5, 29, 0), V(-5.5, 10.5, 0)), False)
sketch6.addGeometry(Part.LineSegment(V(-5.5, 10.5, 0), V(-29, 10.5, 0)), False)
sketch6.addGeometry(Part.LineSegment(V(-29, 10.5, 0), V(-29, 25, 0)), False)
sketch6.addGeometry(Part.ArcOfCircle(Part.Circle(V(-25, 25, 0), V(0, 0, 1), 4), math.radians(90), math.radians(180)), False)
sketch6.addGeometry(Part.LineSegment(V(-4.5, 10.5, 0), V(-4.5, 29, 0)), False)
sketch6.addGeometry(Part.ArcOfCircle(Part.Circle(V(-5, 25, 0), V(0, 0, 1), 4), math.radians(0), math.radians(83)), False)
sketch6.addGeometry(Part.LineSegment(V(-1, 25, 0), V(-1, 10.5, 0)), False)
sketch6.addGeometry(Part.LineSegment(V(-1, 10.5, 0), V(-4.5, 10.5, 0)), False)
sketch6.addGeometry(Part.LineSegment(V(-29, 5.5, 0), V(-29, 9.5, 0)), False)
sketch6.addGeometry(Part.LineSegment(V(-29, 9.5, 0), V(-5.5, 9.5, 0)), False)
sketch6.addGeometry(Part.LineSegment(V(-5.5, 9.5, 0), V(-5.5, 8.5, 0)), False)
sketch6.addGeometry(Part.ArcOfCircle(Part.Circle(V(-5, 5, 0), V(0, 0, 1), 3.5), math.radians(98), math.radians(172)), False)
sketch6.addGeometry(Part.LineSegment(V(-8.5, 5.5, 0), V(-29, 5.5, 0)), False)
sketch6.addGeometry(Part.LineSegment(V(-4.5, 9.5, 0), V(-1, 9.5, 0)), False)
sketch6.addGeometry(Part.LineSegment(V(-1, 9.5, 0), V(-1, 5.5, 0)), False)
sketch6.addGeometry(Part.LineSegment(V(-1, 5.5, 0), V(-1.5, 5.5, 0)), False)
sketch6.addGeometry(Part.ArcOfCircle(Part.Circle(V(-5, 5, 0), V(0, 0, 1), 3.5), math.radians(8), math.radians(82)), False)
sketch6.addGeometry(Part.LineSegment(V(-4.5, 8.5, 0), V(-4.5, 9.5, 0)), False)
sketch6.addGeometry(Part.ArcOfCircle(Part.Circle(V(-25, 5, 0), V(0, 0, 1), 4), math.radians(-173), math.radians(-90)), False)
sketch6.addGeometry(Part.LineSegment(V(-29, 4.5, 0), V(-8.5, 4.5, 0)), False)
sketch6.addGeometry(Part.ArcOfCircle(Part.Circle(V(-5, 5, 0), V(0, 0, 1), 3.5), math.radians(-172), math.radians(-98)), False)
sketch6.addGeometry(Part.LineSegment(V(-5.5, 1.5, 0), V(-5.5, 1, 0)), False)
sketch6.addGeometry(Part.LineSegment(V(-5.5, 1, 0), V(-25, 1, 0)), False)
sketch6.addGeometry(Part.LineSegment(V(-1.5, 4.5, 0), V(-1, 4.5, 0)), False)
sketch6.addGeometry(Part.ArcOfCircle(Part.Circle(V(-5, 5, 0), V(0, 0, 1), 4), math.radians(-83), math.radians(-7)), False)
sketch6.addGeometry(Part.LineSegment(V(-4.5, 1, 0), V(-4.5, 1.5, 0)), False)
sketch6.addGeometry(Part.ArcOfCircle(Part.Circle(V(-5, 5, 0), V(0, 0, 1), 3.5), math.radians(-82), math.radians(-8)), False)
sketch6.addConstraint(Sketcher.Constraint("Coincident", 0, 2, 1, 1))
sketch6.addConstraint(Sketcher.Constraint("Coincident", 1, 2, 2, 1))
sketch6.addConstraint(Sketcher.Constraint("Coincident", 2, 2, 3, 1))
sketch6.addConstraint(Sketcher.Constraint("Tangent", 3, 2, 4, 2))
sketch6.addConstraint(Sketcher.Constraint("Tangent", 4, 1, 0, 1))
sketch6.addConstraint(Sketcher.Constraint("Coincident", 5, 2, 6, 2))
sketch6.addConstraint(Sketcher.Constraint("Tangent", 6, 1, 7, 1))
sketch6.addConstraint(Sketcher.Constraint("Coincident", 7, 2, 8, 1))
sketch6.addConstraint(Sketcher.Constraint("Coincident", 8, 2, 5, 1))
sketch6.addConstraint(Sketcher.Constraint("Coincident", 9, 2, 10, 1))
sketch6.addConstraint(Sketcher.Constraint("Coincident", 10, 2, 11, 1))
sketch6.addConstraint(Sketcher.Constraint("Coincident", 11, 2, 12, 1))
sketch6.addConstraint(Sketcher.Constraint("Coincident", 12, 2, 13, 1))
sketch6.addConstraint(Sketcher.Constraint("Coincident", 13, 2, 9, 1))
sketch6.addConstraint(Sketcher.Constraint("Coincident", 14, 2, 15, 1))
sketch6.addConstraint(Sketcher.Constraint("Coincident", 15, 2, 16, 1))
sketch6.addConstraint(Sketcher.Constraint("Coincident", 16, 2, 17, 1))
sketch6.addConstraint(Sketcher.Constraint("Coincident", 17, 2, 18, 1))
sketch6.addConstraint(Sketcher.Constraint("Coincident", 18, 2, 14, 1))
sketch6.addConstraint(Sketcher.Constraint("Coincident", 19, 1, 20, 1))
sketch6.addConstraint(Sketcher.Constraint("Coincident", 20, 2, 21, 1))
sketch6.addConstraint(Sketcher.Constraint("Coincident", 21, 2, 22, 1))
sketch6.addConstraint(Sketcher.Constraint("Coincident", 22, 2, 23, 1))
sketch6.addConstraint(Sketcher.Constraint("Tangent", 23, 2, 19, 2))
sketch6.addConstraint(Sketcher.Constraint("Coincident", 24, 2, 25, 2))
sketch6.addConstraint(Sketcher.Constraint("Coincident", 25, 1, 26, 1))
sketch6.addConstraint(Sketcher.Constraint("Coincident", 26, 2, 27, 1))
sketch6.addConstraint(Sketcher.Constraint("Coincident", 27, 2, 24, 1))
sketch6.addConstraint(Sketcher.Constraint("Horizontal", 0))
sketch6.addConstraint(Sketcher.Constraint("Vertical", 1))
sketch6.addConstraint(Sketcher.Constraint("Horizontal", 2))
sketch6.addConstraint(Sketcher.Constraint("Vertical", 3))
sketch6.addConstraint(Sketcher.Constraint("Vertical", 5))
sketch6.addConstraint(Sketcher.Constraint("Vertical", 7))
sketch6.addConstraint(Sketcher.Constraint("Horizontal", 8))
sketch6.addConstraint(Sketcher.Constraint("Vertical", 9))
sketch6.addConstraint(Sketcher.Constraint("Horizontal", 10))
sketch6.addConstraint(Sketcher.Constraint("Vertical", 11))
sketch6.addConstraint(Sketcher.Constraint("Horizontal", 13))
sketch6.addConstraint(Sketcher.Constraint("Horizontal", 14))
sketch6.addConstraint(Sketcher.Constraint("Vertical", 15))
sketch6.addConstraint(Sketcher.Constraint("Horizontal", 16))
sketch6.addConstraint(Sketcher.Constraint("Vertical", 18))
sketch6.addConstraint(Sketcher.Constraint("Horizontal", 20))
sketch6.addConstraint(Sketcher.Constraint("Vertical", 22))
sketch6.addConstraint(Sketcher.Constraint("Horizontal", 23))
sketch6.addConstraint(Sketcher.Constraint("Horizontal", 24))
sketch6.addConstraint(Sketcher.Constraint("Vertical", 26))
sketch6.addConstraint(Sketcher.Constraint("Coincident", 17, 3, 12, 3))
sketch6.addConstraint(Sketcher.Constraint("Coincident", 21, 3, 12, 3))
sketch6.addConstraint(Sketcher.Constraint("Coincident", 25, 3, 12, 3))
sketch6.addConstraint(Sketcher.Constraint("Coincident", 27, 3, 12, 3))
sketch6.addConstraint(Sketcher.Constraint("Equal", 4, 6))
sketch6.addConstraint(Sketcher.Constraint("Equal", 12, 17))
sketch6.addConstraint(Sketcher.Constraint("Equal", 6, 19))
sketch6.addConstraint(Sketcher.Constraint("Equal", 17, 21))
sketch6.addConstraint(Sketcher.Constraint("Equal", 19, 25))
sketch6.addConstraint(Sketcher.Constraint("Equal", 21, 27))
sketch6.addConstraint(Sketcher.Constraint("Horizontal", 4, 3, 6, 3))
sketch6.addConstraint(Sketcher.Constraint("Horizontal", 17, 3, 19, 3))
sketch6.addConstraint(Sketcher.Constraint("Horizontal", 2, 2, 7, 2))
sketch6.addConstraint(Sketcher.Constraint("Horizontal", 10, 2, 14, 2))
sketch6.addConstraint(Sketcher.Constraint("Horizontal", 13, 2, 15, 2))
sketch6.addConstraint(Sketcher.Constraint("Horizontal", 11, 2, 17, 2))
sketch6.addConstraint(Sketcher.Constraint("Horizontal", 20, 2, 24, 2))
sketch6.addConstraint(Sketcher.Constraint("Horizontal", 21, 2, 26, 2))
sketch6.addConstraint(Sketcher.Constraint("Vertical", 6, 3, 12, 3))
sketch6.addConstraint(Sketcher.Constraint("Vertical", 4, 3, 19, 3))
sketch6.addConstraint(Sketcher.Constraint("Vertical", 3, 2, 9, 2))
sketch6.addConstraint(Sketcher.Constraint("Vertical", 1, 2, 10, 2))
sketch6.addConstraint(Sketcher.Constraint("Vertical", 7, 2, 14, 2))
sketch6.addConstraint(Sketcher.Constraint("Vertical", 8, 2, 17, 2))
sketch6.addConstraint(Sketcher.Constraint("Vertical", 12, 2, 20, 2))
sketch6.addConstraint(Sketcher.Constraint("Vertical", 11, 2, 21, 2))
sketch6.addConstraint(Sketcher.Constraint("Equal", 16, 22))
sketch6.addConstraint(Sketcher.Constraint("Radius", 4, 4.0))
sketch6.addConstraint(Sketcher.Constraint("Radius", 12, 3.5))
sketch6.addConstraint(Sketcher.Constraint("DistanceY", 9, 1, 9, 2, 4.0))
sketch6.addConstraint(Sketcher.Constraint("DistanceX", 6, 3, -1, 1, 5.0))
sketch6.addConstraint(Sketcher.Constraint("DistanceY", -1, 1, 12, 3, 5.0))
sketch6.addConstraint(Sketcher.Constraint("DistanceX", 0, 2, 5, 2, 1.0))
sketch6.addConstraint(Sketcher.Constraint("DistanceY", 9, 2, 2, 2, 1.0))
sketch6.addConstraint(Sketcher.Constraint("DistanceX", 0, 1, 0, 2, 19.5))
sketch6.addConstraint(Sketcher.Constraint("DistanceY", 1, 2, 1, 1, 18.5))
sketch6.setExpression("Constraints[75]", "Params.sketch6_radius")
sketch6.setExpression("Constraints[76]", "Params.sketch6_radius2")
sketch6.setExpression("Constraints[77]", "Params.sketch6_height")
sketch6.setExpression("Constraints[82]", "Params.sketch6_width")
sketch6.setExpression("Constraints[83]", "Params.sketch6_height2")
pad6 = body.newObject("PartDesign::Pad", "Pad005")
pad6.Profile = sketch6
pad6.setExpression("Length", "Params.pad6_length")

doc.recompute()
